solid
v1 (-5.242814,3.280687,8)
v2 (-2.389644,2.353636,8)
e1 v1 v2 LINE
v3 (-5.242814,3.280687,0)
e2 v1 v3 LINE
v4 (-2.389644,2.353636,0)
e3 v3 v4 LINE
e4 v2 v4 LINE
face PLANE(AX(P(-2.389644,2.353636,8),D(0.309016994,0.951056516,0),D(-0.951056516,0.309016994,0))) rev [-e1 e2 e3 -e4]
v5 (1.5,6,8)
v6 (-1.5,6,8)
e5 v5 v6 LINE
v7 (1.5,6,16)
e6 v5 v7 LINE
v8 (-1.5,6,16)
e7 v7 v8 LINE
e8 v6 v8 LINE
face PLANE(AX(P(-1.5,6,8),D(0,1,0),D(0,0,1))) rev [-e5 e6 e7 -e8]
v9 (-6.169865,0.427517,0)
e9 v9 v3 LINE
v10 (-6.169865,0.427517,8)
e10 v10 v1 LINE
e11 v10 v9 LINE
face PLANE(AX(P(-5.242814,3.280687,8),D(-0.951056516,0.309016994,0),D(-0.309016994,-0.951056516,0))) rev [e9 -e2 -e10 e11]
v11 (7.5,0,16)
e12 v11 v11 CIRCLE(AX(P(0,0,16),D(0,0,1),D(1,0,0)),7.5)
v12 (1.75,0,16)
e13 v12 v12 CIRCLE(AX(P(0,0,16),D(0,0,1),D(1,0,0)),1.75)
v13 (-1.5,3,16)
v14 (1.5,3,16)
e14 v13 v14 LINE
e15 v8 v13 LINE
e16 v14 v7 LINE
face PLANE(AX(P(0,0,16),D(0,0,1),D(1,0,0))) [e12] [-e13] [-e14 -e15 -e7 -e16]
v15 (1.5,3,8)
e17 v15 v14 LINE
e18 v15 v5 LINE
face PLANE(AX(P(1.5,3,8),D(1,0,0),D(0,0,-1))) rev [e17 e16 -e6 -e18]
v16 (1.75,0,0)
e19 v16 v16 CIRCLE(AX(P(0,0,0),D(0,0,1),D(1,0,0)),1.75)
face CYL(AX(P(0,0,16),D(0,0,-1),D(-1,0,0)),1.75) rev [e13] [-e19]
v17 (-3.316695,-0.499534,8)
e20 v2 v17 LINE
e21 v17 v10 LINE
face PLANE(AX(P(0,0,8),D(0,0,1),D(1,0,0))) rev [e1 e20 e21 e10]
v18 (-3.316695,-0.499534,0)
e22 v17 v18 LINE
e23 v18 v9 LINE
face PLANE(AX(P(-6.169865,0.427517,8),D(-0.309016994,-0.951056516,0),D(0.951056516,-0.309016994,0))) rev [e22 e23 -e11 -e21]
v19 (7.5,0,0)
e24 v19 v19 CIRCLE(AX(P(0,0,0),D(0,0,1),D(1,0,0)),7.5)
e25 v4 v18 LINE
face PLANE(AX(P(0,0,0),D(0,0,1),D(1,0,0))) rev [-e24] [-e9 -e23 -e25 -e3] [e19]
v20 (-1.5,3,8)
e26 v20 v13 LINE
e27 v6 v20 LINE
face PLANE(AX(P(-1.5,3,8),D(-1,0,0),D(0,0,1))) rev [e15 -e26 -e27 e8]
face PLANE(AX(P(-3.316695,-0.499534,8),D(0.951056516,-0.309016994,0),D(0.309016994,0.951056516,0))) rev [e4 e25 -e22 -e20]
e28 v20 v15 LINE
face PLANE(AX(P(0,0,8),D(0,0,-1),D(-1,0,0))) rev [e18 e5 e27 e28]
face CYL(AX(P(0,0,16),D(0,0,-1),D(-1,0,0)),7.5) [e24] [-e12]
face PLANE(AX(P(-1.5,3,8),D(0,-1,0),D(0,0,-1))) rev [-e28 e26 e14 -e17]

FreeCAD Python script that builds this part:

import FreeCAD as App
import Part
import Sketcher

V = App.Vector
Q = App.Units.Quantity

doc = App.newDocument("Part")
body = doc.addObject("PartDesign::Body", "Body")

# Sketch on XY plane
sketch1 = doc.addObject("Sketcher::SketchObject", "Sketch")
body.addObject(sketch1)
sketch1.AttachmentSupport = (doc.XY_Plane, [""])
sketch1.MapMode = "FlatFace"
sketch1.addGeometry([
    Part.Circle(V(0, 0, 0), V(0, 0, 1), 7.5),
    Part.Circle(V(0, 0, 0), V(0, 0, 1), 1.8),
], False)
sketch1.addConstraint([
    Sketcher.Constraint("Coincident", 0, 3, -1, 1),
    Sketcher.Constraint("Coincident", 1, 3, -1, 1),
    Sketcher.Constraint("Diameter", 0, Q("15 mm")),
    Sketcher.Constraint("Diameter", 1, Q("3.5 mm")),
])
pad1 = doc.addObject("PartDesign::Pad", "Pad")
body.addObject(pad1)
pad1.Profile = sketch1
pad1.Length = 16

# Sketch on XY plane
sketch2 = doc.addObject("Sketcher::SketchObject", "Sketch001")
body.addObject(sketch2)
sketch2.AttachmentSupport = (doc.XY_Plane, [""])
sketch2.MapMode = "FlatFace"
sketch2.AttachmentOffset = App.Placement(V(0, 0, 16), App.Rotation())
sketch2.addGeometry([
    Part.LineSegment(V(-1.5, 6, 0), V(-1.5, 3, 0)),
    Part.LineSegment(V(-1.5, 3, 0), V(1.5, 3, 0)),
    Part.LineSegment(V(1.5, 3, 0), V(1.5, 6, 0)),
    Part.LineSegment(V(1.5, 6, 0), V(-1.5, 6, 0)),
], False)
sketch2.addConstraint([
    Sketcher.Constraint("Coincident", 0, 2, 1, 1),
    Sketcher.Constraint("Coincident", 1, 2, 2, 1),
    Sketcher.Constraint("Coincident", 2, 2, 3, 1),
    Sketcher.Constraint("Coincident", 3, 2, 0, 1),
    Sketcher.Constraint("Vertical", 0),
    Sketcher.Constraint("Horizontal", 1),
    Sketcher.Constraint("Vertical", 2),
    Sketcher.Constraint("Horizontal", 3),
    Sketcher.Constraint("Equal", 3, 0),
    Sketcher.Constraint("DistanceX", 1, 1, 1, 2, Q("3 mm")),
    Sketcher.Constraint("DistanceY", -1, 1, 0, 2, Q("3 mm")),
    Sketcher.Constraint("DistanceX", 0, 2, -1, 1, Q("1.5 mm")),
])
pocket1 = doc.addObject("PartDesign::Pocket", "Pocket")
body.addObject(pocket1)
pocket1.Profile = sketch2
pocket1.Length = 8

# Sketch on XY plane
sketch3 = doc.addObject("Sketcher::SketchObject", "Sketch002")
body.addObject(sketch3)
sketch3.AttachmentSupport = (doc.XY_Plane, [""])
sketch3.MapMode = "FlatFace"
sketch3.addGeometry([
    Part.LineSegment(V(-2.4, 2.4, 0), V(-3.3, -0.5, 0)),
    Part.LineSegment(V(-3.3, -0.5, 0), V(-6.2, 0.4, 0)),
    Part.LineSegment(V(-6.2, 0.4, 0), V(-5.2, 3.3, 0)),
    Part.LineSegment(V(-5.2, 3.3, 0), V(-2.4, 2.4, 0)),
], False)
sketch3.addConstraint([
    Sketcher.Constraint("Coincident", 0, 2, 1, 1),
    Sketcher.Constraint("Coincident", 1, 2, 2, 1),
    Sketcher.Constraint("Coincident", 2, 2, 3, 1),
    Sketcher.Constraint("Coincident", 3, 2, 0, 1),
    Sketcher.Constraint("Perpendicular", 0, 1),
    Sketcher.Constraint("Perpendicular", 1, 2),
    Sketcher.Constraint("Perpendicular", 2, 3),
    Sketcher.Constraint("Equal", 0, 1),
    Sketcher.Constraint("Angle", 0, Q("-108 deg")),
    Sketcher.Constraint("Distance", 0, Q("3 mm")),
    Sketcher.Constraint("DistanceX", 0, 2, -1, 1, Q("3.316695 mm")),
    Sketcher.Constraint("DistanceY", 0, 2, -1, 1, Q("0.499534 mm")),
])
pocket2 = doc.addObject("PartDesign::Pocket", "Pocket001")
body.addObject(pocket2)
pocket2.Profile = sketch3
pocket2.Length = 8
pocket2.Reversed = True

doc.recompute()
